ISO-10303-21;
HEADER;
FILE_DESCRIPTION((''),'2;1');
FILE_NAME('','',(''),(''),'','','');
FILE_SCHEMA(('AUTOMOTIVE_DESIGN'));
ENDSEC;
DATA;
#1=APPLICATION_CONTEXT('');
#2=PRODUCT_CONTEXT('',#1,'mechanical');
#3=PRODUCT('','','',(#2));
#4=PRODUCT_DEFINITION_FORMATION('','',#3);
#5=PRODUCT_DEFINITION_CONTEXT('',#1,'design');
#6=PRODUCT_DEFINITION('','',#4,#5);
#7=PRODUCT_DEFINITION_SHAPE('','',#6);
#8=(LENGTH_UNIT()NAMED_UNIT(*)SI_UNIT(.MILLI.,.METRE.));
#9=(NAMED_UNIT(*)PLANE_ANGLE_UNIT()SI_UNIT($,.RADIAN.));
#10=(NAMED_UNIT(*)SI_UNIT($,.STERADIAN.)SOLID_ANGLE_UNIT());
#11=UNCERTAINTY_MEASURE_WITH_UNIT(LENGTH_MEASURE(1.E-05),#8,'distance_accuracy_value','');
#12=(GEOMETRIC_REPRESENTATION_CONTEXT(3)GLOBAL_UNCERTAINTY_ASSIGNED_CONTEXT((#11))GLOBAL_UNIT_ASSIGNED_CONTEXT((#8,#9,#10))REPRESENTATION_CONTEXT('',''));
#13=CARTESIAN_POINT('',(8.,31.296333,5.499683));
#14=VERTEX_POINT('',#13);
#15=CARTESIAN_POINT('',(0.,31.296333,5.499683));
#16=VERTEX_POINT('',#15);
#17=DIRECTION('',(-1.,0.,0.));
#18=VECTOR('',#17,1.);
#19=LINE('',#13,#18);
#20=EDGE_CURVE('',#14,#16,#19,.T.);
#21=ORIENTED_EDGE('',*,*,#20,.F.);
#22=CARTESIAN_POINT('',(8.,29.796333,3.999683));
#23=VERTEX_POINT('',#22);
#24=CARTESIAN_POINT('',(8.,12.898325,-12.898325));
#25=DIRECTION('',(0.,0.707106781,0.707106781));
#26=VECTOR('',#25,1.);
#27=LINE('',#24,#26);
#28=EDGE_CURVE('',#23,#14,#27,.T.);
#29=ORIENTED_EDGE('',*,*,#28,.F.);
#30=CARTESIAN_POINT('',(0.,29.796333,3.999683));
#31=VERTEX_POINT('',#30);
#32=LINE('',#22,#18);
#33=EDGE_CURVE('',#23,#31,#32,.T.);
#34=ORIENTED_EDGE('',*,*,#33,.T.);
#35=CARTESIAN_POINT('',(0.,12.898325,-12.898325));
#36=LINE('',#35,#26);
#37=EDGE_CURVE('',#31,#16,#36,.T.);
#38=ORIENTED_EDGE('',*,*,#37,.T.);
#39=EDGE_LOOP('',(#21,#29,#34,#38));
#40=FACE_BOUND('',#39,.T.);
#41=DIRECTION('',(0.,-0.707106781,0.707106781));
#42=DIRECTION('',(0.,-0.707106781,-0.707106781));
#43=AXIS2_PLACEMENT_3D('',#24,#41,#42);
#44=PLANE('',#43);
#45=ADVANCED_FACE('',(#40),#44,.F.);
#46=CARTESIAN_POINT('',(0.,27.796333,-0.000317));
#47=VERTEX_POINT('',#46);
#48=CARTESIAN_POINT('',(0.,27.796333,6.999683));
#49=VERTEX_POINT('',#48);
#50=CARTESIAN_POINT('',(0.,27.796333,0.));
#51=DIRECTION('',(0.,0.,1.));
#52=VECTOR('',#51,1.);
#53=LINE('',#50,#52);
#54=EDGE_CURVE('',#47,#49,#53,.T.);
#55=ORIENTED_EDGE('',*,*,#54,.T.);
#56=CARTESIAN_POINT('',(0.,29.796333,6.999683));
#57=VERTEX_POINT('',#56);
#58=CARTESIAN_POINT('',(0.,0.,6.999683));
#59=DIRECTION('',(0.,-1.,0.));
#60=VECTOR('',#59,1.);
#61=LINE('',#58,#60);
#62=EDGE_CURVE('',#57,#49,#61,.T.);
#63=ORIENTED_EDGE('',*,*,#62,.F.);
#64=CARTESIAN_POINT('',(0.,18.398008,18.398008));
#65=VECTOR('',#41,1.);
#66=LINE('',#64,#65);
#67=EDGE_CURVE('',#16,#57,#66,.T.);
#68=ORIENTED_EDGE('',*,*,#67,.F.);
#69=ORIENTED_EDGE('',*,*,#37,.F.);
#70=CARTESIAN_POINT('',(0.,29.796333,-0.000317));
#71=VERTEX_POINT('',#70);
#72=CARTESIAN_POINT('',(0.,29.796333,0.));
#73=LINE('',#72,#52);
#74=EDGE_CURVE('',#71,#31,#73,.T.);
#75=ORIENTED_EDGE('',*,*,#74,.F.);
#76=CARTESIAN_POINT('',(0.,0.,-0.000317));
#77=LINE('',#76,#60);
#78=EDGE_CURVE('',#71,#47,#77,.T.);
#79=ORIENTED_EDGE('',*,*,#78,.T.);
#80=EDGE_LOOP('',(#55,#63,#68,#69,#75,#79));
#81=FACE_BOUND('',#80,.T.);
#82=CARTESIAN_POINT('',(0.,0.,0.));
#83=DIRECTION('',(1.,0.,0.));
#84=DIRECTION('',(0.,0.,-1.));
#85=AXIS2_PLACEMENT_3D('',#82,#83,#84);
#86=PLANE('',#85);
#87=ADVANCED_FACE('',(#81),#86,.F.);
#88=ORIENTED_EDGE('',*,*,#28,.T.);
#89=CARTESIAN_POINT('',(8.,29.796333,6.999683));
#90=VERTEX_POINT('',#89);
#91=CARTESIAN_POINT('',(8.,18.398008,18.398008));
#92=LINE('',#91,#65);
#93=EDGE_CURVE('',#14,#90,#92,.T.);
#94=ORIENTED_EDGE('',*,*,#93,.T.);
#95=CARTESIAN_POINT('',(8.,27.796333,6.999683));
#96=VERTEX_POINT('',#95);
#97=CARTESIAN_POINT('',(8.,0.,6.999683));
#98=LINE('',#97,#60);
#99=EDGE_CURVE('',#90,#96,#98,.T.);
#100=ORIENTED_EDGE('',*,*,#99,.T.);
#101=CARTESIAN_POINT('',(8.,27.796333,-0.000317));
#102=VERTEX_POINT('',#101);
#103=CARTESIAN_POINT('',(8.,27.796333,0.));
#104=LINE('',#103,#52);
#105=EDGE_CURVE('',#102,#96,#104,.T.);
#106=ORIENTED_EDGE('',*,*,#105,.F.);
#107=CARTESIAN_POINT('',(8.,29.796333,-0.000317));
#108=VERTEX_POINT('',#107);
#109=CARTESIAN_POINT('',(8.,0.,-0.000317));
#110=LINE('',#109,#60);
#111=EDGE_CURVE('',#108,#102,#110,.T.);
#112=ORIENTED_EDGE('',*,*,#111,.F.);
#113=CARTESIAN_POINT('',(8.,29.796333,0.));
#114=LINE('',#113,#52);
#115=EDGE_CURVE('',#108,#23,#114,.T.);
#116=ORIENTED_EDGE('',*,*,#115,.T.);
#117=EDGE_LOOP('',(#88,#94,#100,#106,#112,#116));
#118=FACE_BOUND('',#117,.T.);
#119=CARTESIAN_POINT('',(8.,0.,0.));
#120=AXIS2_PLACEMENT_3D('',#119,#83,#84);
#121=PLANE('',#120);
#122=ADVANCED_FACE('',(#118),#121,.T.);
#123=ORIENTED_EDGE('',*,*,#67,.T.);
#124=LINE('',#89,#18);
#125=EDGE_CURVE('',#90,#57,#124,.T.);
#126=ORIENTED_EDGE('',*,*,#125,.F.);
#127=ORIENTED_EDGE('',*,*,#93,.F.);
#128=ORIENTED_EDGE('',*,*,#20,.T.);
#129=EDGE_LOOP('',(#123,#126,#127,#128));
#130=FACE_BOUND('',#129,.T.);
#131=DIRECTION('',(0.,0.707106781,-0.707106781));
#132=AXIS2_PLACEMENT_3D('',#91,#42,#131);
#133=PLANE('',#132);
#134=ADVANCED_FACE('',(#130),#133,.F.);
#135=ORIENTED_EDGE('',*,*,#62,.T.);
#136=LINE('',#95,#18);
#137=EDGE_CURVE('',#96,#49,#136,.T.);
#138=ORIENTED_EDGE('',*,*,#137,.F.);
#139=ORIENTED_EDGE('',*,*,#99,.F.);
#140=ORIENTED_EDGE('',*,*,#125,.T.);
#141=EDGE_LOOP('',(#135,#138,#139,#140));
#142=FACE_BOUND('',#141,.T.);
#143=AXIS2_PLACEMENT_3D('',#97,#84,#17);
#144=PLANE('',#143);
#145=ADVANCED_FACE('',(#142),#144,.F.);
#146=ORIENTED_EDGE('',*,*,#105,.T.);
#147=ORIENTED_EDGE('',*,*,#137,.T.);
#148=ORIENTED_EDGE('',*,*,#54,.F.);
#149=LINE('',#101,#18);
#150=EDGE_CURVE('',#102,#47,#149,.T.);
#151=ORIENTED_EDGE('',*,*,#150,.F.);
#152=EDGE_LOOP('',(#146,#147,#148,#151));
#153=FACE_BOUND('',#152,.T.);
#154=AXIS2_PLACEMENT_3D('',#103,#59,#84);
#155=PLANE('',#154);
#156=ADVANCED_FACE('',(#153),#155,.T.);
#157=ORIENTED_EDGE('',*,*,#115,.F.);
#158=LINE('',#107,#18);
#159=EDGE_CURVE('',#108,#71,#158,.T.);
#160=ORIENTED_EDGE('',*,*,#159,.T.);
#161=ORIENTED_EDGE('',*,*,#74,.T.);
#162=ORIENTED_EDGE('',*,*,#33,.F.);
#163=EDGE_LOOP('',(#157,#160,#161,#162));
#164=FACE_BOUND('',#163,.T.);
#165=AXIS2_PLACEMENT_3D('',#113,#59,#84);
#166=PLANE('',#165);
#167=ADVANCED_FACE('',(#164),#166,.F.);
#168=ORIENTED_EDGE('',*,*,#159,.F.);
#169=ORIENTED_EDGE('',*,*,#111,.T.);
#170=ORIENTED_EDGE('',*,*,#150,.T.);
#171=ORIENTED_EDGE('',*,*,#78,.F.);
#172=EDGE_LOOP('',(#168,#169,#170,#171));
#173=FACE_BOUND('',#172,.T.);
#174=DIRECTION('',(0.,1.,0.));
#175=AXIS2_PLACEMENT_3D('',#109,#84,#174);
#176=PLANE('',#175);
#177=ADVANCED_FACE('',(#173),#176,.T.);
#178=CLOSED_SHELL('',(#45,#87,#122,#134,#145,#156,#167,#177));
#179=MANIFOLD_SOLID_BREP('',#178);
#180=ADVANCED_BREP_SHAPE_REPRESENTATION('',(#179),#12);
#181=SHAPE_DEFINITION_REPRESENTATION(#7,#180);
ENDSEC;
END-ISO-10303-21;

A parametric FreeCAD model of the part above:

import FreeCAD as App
import Part
import Sketcher

doc = App.newDocument("Part")
params = doc.addObject("Spreadsheet::Sheet", "Params")
for row, (alias, value) in enumerate([
    ("sketch1_width", "2 mm"),
    ("sketch1_height", "4 mm"),
    ("sketch1_height2", "7 mm"),
    ("pad1_length", "8 mm"),
], start=1):
    params.set(f"A{row}", alias)
    params.set(f"B{row}", "=" + value)
    params.setAlias(f"B{row}", alias)

body = doc.addObject("PartDesign::Body", "Body")

# Sketch on YZ plane
sketch1 = body.newObject("Sketcher::SketchObject", "Sketch")
sketch1.AttachmentSupport = (doc.getObject("YZ_Plane"), [""])
sketch1.MapMode = "FlatFace"
sketch1.addGeometry(Part.LineSegment(App.Vector(27.8, 0, 0), App.Vector(29.8, 0, 0)), False)
sketch1.addGeometry(Part.LineSegment(App.Vector(29.8, 0, 0), App.Vector(29.8, 4, 0)), False)
sketch1.addGeometry(Part.LineSegment(App.Vector(29.8, 4, 0), App.Vector(31.3, 5.5, 0)), False)
sketch1.addGeometry(Part.LineSegment(App.Vector(31.3, 5.5, 0), App.Vector(29.8, 7, 0)), False)
sketch1.addGeometry(Part.LineSegment(App.Vector(29.8, 7, 0), App.Vector(27.8, 7, 0)), False)
sketch1.addGeometry(Part.LineSegment(App.Vector(27.8, 7, 0), App.Vector(27.8, 0, 0)), False)
sketch1.addConstraint(Sketcher.Constraint("Coincident", 0, 2, 1, 1))
sketch1.addConstraint(Sketcher.Constraint("Coincident", 1, 2, 2, 1))
sketch1.addConstraint(Sketcher.Constraint("Coincident", 2, 2, 3, 1))
sketch1.addConstraint(Sketcher.Constraint("Coincident", 3, 2, 4, 1))
sketch1.addConstraint(Sketcher.Constraint("Coincident", 4, 2, 5, 1))
sketch1.addConstraint(Sketcher.Constraint("Coincident", 5, 2, 0, 1))
sketch1.addConstraint(Sketcher.Constraint("Horizontal", 0))
sketch1.addConstraint(Sketcher.Constraint("Vertical", 1))
sketch1.addConstraint(Sketcher.Constraint("Horizontal", 4))
sketch1.addConstraint(Sketcher.Constraint("Vertical", 5))
sketch1.addConstraint(Sketcher.Constraint("Perpendicular", 2, 3))
sketch1.addConstraint(Sketcher.Constraint("Vertical", 1, 2, 3, 2))
sketch1.addConstraint(Sketcher.Constraint("Equal", 2, 3))
sketch1.addConstraint(Sketcher.Constraint("DistanceX", 0, 1, 0, 2, 2.0))
sketch1.addConstraint(Sketcher.Constraint("DistanceY", 1, 1, 1, 2, 4.0))
sketch1.addConstraint(Sketcher.Constraint("DistanceY", 5, 2, 5, 1, 7.0))
sketch1.addConstraint(Sketcher.Constraint("DistanceX", -1, 1, 0, 2, 29.796333))
sketch1.addConstraint(Sketcher.Constraint("DistanceY", 0, 2, -1, 1, 0.000317))
sketch1.setExpression("Constraints[13]", "Params.sketch1_width")
sketch1.setExpression("Constraints[14]", "Params.sketch1_height")
sketch1.setExpression("Constraints[15]", "Params.sketch1_height2")
pad1 = body.newObject("PartDesign::Pad", "Pad")
pad1.Profile = sketch1
pad1.setExpression("Length", "Params.pad1_length")

doc.recompute()
